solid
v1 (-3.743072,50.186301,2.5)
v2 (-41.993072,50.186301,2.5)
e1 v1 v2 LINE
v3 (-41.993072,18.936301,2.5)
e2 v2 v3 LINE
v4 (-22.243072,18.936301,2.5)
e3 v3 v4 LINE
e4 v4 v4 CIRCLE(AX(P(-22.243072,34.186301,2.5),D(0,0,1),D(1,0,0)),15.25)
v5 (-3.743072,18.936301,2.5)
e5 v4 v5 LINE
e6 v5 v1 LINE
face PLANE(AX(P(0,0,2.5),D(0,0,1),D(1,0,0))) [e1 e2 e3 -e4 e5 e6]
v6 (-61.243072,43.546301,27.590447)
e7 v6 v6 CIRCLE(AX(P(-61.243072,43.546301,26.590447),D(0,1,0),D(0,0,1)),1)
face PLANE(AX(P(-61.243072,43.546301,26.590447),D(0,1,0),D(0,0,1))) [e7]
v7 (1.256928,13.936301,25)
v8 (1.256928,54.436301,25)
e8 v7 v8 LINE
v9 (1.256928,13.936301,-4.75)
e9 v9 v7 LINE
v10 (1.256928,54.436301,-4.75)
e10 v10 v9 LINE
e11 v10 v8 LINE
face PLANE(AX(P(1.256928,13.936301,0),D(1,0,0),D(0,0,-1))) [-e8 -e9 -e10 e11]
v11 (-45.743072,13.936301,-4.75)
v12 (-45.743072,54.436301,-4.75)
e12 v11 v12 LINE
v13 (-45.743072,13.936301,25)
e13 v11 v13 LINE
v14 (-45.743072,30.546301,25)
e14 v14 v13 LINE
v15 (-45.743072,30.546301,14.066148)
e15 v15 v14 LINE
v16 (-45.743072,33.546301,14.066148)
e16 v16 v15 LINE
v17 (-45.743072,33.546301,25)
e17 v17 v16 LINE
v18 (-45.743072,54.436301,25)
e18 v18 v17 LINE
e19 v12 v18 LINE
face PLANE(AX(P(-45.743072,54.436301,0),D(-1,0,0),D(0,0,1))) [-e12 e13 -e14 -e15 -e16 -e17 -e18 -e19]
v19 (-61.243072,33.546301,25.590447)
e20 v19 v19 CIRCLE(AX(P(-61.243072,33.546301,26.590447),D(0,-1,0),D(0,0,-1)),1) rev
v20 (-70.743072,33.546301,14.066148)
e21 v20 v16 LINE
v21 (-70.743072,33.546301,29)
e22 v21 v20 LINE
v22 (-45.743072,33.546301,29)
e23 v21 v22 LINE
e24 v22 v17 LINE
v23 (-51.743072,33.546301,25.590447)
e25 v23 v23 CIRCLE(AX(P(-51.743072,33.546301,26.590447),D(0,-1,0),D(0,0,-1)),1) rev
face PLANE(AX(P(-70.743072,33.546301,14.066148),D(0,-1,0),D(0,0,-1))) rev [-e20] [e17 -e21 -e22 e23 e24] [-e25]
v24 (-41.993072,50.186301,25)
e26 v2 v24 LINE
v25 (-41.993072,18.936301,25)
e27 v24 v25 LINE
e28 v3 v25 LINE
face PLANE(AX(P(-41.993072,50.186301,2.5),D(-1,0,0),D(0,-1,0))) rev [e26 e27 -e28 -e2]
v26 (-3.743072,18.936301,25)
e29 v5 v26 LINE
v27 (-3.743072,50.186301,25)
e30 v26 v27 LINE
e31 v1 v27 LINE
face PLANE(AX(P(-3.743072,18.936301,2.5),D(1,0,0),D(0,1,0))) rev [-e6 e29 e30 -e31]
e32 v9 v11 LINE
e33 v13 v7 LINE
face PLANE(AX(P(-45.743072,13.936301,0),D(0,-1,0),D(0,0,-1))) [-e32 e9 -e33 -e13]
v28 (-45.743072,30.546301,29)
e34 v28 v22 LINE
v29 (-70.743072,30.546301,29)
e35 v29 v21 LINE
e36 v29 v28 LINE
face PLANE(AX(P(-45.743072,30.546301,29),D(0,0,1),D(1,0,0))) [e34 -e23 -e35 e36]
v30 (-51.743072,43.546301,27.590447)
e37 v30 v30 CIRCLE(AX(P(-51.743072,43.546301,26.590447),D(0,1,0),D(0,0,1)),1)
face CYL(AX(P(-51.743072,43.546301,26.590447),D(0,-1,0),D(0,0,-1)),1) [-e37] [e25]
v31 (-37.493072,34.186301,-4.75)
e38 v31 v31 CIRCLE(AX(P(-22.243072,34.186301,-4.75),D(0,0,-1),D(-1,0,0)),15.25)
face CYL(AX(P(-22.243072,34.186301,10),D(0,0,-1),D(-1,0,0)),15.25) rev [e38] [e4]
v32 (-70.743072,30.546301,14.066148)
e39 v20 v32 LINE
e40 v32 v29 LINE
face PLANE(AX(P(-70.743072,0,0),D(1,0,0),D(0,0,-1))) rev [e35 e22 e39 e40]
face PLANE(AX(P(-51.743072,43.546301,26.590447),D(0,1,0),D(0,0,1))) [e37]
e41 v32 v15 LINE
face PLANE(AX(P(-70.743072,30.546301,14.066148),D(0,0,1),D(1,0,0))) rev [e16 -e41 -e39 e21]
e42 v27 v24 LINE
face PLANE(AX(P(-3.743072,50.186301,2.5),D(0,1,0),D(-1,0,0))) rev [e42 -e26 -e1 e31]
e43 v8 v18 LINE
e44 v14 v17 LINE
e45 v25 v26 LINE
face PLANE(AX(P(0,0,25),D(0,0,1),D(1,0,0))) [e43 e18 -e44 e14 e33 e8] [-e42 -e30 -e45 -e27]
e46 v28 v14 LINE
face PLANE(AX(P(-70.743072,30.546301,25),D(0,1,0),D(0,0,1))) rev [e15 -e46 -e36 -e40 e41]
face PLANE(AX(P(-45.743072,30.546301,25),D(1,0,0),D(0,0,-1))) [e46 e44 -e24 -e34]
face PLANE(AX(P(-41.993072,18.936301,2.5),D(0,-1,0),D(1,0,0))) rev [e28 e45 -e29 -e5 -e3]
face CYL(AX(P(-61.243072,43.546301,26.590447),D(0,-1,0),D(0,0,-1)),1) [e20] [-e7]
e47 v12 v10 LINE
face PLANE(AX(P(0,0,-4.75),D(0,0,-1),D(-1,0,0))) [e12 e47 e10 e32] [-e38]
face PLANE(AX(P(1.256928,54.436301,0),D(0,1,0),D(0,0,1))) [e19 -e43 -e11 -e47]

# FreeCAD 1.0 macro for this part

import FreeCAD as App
import Part
import Sketcher
from FreeCAD import Vector
Q = App.Units.Quantity

doc = App.newDocument("Part")
params = doc.addObject("Spreadsheet::Sheet", "Params")
for row, (alias, value) in enumerate([
    ("sketch1_width", "47 mm"),
    ("sketch1_height", "40.5 mm"),
    ("pad1_length", "25 mm"),
    ("sketch2_width", "3 mm"),
    ("pad2_length", "25 mm"),
    ("sketch3_width", "38.25 mm"),
    ("sketch3_height", "31.25 mm"),
    ("pocket1_length", "22.5 mm"),
    ("sketch4_diameter", "30.5 mm"),
    ("pocket2_length", "10 mm"),
    ("sketch5_diameter", "30.5 mm"),
    ("sketch5_width", "47 mm"),
    ("sketch5_height", "40.5 mm"),
    ("pad3_length", "4.75 mm"),
    ("sketch6_width", "25 mm"),
    ("sketch6_height", "4 mm"),
    ("pad4_length", "3 mm"),
    ("sketch7_diameter", "2 mm"),
    ("pad5_length", "10 mm"),
], start=1):
    params.set(f"A{row}", alias)
    params.set(f"B{row}", "=" + value)
    params.setAlias(f"B{row}", alias)

body = doc.addObject("PartDesign::Body", "Body")

sketch1 = doc.addObject("Sketcher::SketchObject", "Sketch")
body.addObject(sketch1)
sketch1.AttachmentSupport = (doc.XY_Plane, [""])
sketch1.MapMode = "FlatFace"
sketch1.AttachmentOffset = App.Placement(Vector(0, 0, 25), App.Rotation())
sketch1.addGeometry(Part.LineSegment(Vector(-46, 54, 0), Vector(-46, 14, 0)), False)
sketch1.addGeometry(Part.LineSegment(Vector(-46, 14, 0), Vector(1, 14, 0)), False)
sketch1.addGeometry(Part.LineSegment(Vector(1, 14, 0), Vector(1, 54, 0)), False)
sketch1.addGeometry(Part.LineSegment(Vector(1, 54, 0), Vector(-46, 54, 0)), False)
sketch1.addConstraint(Sketcher.Constraint("Coincident", 0, 2, 1, 1))
sketch1.addConstraint(Sketcher.Constraint("Coincident", 1, 2, 2, 1))
sketch1.addConstraint(Sketcher.Constraint("Coincident", 2, 2, 3, 1))
sketch1.addConstraint(Sketcher.Constraint("Coincident", 3, 2, 0, 1))
sketch1.addConstraint(Sketcher.Constraint("Vertical", 0))
sketch1.addConstraint(Sketcher.Constraint("Horizontal", 1))
sketch1.addConstraint(Sketcher.Constraint("Vertical", 2))
sketch1.addConstraint(Sketcher.Constraint("Horizontal", 3))
sketch1.addConstraint(Sketcher.Constraint("DistanceX", 1, 1, 1, 2, Q("47 mm")))
sketch1.addConstraint(Sketcher.Constraint("DistanceY", 0, 2, 0, 1, Q("40.5 mm")))
sketch1.addConstraint(Sketcher.Constraint("DistanceY", -1, 1, 0, 2, Q("13.936301 mm")))
sketch1.addConstraint(Sketcher.Constraint("DistanceX", 0, 2, -1, 1, Q("45.743072 mm")))
sketch1.setExpression("Constraints[8]", "Params.sketch1_width")
sketch1.setExpression("Constraints[9]", "Params.sketch1_height")
pad1 = doc.addObject("PartDesign::Pad", "Pad")
body.addObject(pad1)
pad1.Profile = sketch1
pad1.setExpression("Length", "Params.pad1_length")
pad1.Reversed = True

sketch2 = doc.addObject("Sketcher::SketchObject", "Sketch001")
body.addObject(sketch2)
sketch2.AttachmentSupport = (doc.YZ_Plane, [""])
sketch2.MapMode = "FlatFace"
sketch2.AttachmentOffset = App.Placement(Vector(0, 0, -45.743072), App.Rotation())
sketch2.addGeometry(Part.LineSegment(Vector(33.5, 14.1, 0), Vector(30.5, 14.1, 0)), False)
sketch2.addGeometry(Part.LineSegment(Vector(30.5, 14.1, 0), Vector(30.5, 25, 0)), False)
sketch2.addGeometry(Part.LineSegment(Vector(30.5, 25, 0), Vector(33.5, 25, 0)), False)
sketch2.addGeometry(Part.LineSegment(Vector(33.5, 25, 0), Vector(33.5, 14.1, 0)), False)
sketch2.addConstraint(Sketcher.Constraint("Coincident", 0, 2, 1, 1))
sketch2.addConstraint(Sketcher.Constraint("Coincident", 1, 2, 2, 1))
sketch2.addConstraint(Sketcher.Constraint("Coincident", 2, 2, 3, 1))
sketch2.addConstraint(Sketcher.Constraint("Coincident", 3, 2, 0, 1))
sketch2.addConstraint(Sketcher.Constraint("Horizontal", 0))
sketch2.addConstraint(Sketcher.Constraint("Vertical", 1))
sketch2.addConstraint(Sketcher.Constraint("Horizontal", 2))
sketch2.addConstraint(Sketcher.Constraint("Vertical", 3))
sketch2.addConstraint(Sketcher.Constraint("DistanceX", 0, 2, 0, 1, Q("3 mm")))
sketch2.addConstraint(Sketcher.Constraint("DistanceY", -1, 1, 1, 2, Q("25 mm")))
sketch2.addConstraint(Sketcher.Constraint("DistanceY", 1, 1, 1, 2, Q("10.933852 mm")))
sketch2.addConstraint(Sketcher.Constraint("DistanceX", -1, 1, 0, 2, Q("30.546301 mm")))
sketch2.setExpression("Constraints[8]", "Params.sketch2_width")
pad2 = doc.addObject("PartDesign::Pad", "Pad001")
body.addObject(pad2)
pad2.Profile = sketch2
pad2.setExpression("Length", "Params.pad2_length")
pad2.Reversed = True

sketch3 = doc.addObject("Sketcher::SketchObject", "Sketch002")
body.addObject(sketch3)
sketch3.AttachmentSupport = (doc.XY_Plane, [""])
sketch3.MapMode = "FlatFace"
sketch3.AttachmentOffset = App.Placement(Vector(0, 0, 25), App.Rotation())
sketch3.addGeometry(Part.LineSegment(Vector(-42, 50, 0), Vector(-42, 19, 0)), False)
sketch3.addGeometry(Part.LineSegment(Vector(-42, 19, 0), Vector(-4, 19, 0)), False)
sketch3.addGeometry(Part.LineSegment(Vector(-4, 19, 0), Vector(-4, 50, 0)), False)
sketch3.addGeometry(Part.LineSegment(Vector(-4, 50, 0), Vector(-42, 50, 0)), False)
sketch3.addConstraint(Sketcher.Constraint("Coincident", 0, 2, 1, 1))
sketch3.addConstraint(Sketcher.Constraint("Coincident", 1, 2, 2, 1))
sketch3.addConstraint(Sketcher.Constraint("Coincident", 2, 2, 3, 1))
sketch3.addConstraint(Sketcher.Constraint("Coincident", 3, 2, 0, 1))
sketch3.addConstraint(Sketcher.Constraint("Vertical", 0))
sketch3.addConstraint(Sketcher.Constraint("Horizontal", 1))
sketch3.addConstraint(Sketcher.Constraint("Vertical", 2))
sketch3.addConstraint(Sketcher.Constraint("Horizontal", 3))
sketch3.addConstraint(Sketcher.Constraint("DistanceX", 1, 1, 1, 2, Q("38.25 mm")))
sketch3.addConstraint(Sketcher.Constraint("DistanceY", 0, 2, 0, 1, Q("31.25 mm")))
sketch3.addConstraint(Sketcher.Constraint("DistanceY", -1, 1, 0, 2, Q("18.936301 mm")))
sketch3.addConstraint(Sketcher.Constraint("DistanceX", 0, 2, -1, 1, Q("41.993072 mm")))
sketch3.setExpression("Constraints[8]", "Params.sketch3_width")
sketch3.setExpression("Constraints[9]", "Params.sketch3_height")
pocket1 = doc.addObject("PartDesign::Pocket", "Pocket")
body.addObject(pocket1)
pocket1.Profile = sketch3
pocket1.setExpression("Length", "Params.pocket1_length")

sketch4 = doc.addObject("Sketcher::SketchObject", "Sketch003")
body.addObject(sketch4)
sketch4.AttachmentSupport = (doc.XY_Plane, [""])
sketch4.MapMode = "FlatFace"
sketch4.addGeometry(Part.Circle(Vector(-22, 34, 0), Vector(0, 0, 1), 15), False)
sketch4.addConstraint(Sketcher.Constraint("Diameter", 0, Q("30.5 mm")))
sketch4.addConstraint(Sketcher.Constraint("DistanceY", -1, 1, 0, 3, Q("34.186301 mm")))
sketch4.addConstraint(Sketcher.Constraint("DistanceX", 0, 3, -1, 1, Q("22.243072 mm")))
sketch4.setExpression("Constraints[0]", "Params.sketch4_diameter")
pocket2 = doc.addObject("PartDesign::Pocket", "Pocket001")
body.addObject(pocket2)
pocket2.Profile = sketch4
pocket2.setExpression("Length", "Params.pocket2_length")
pocket2.Reversed = True

sketch5 = doc.addObject("Sketcher::SketchObject", "Sketch004")
body.addObject(sketch5)
sketch5.AttachmentSupport = (doc.XY_Plane, [""])
sketch5.MapMode = "FlatFace"
sketch5.AttachmentOffset = App.Placement(Vector(0, 0, -4.75), App.Rotation())
sketch5.addGeometry(Part.LineSegment(Vector(1, 54, 0), Vector(1, 14, 0)), False)
sketch5.addGeometry(Part.LineSegment(Vector(1, 14, 0), Vector(-46, 14, 0)), False)
sketch5.addGeometry(Part.LineSegment(Vector(-46, 14, 0), Vector(-46, 54, 0)), False)
sketch5.addGeometry(Part.LineSegment(Vector(-46, 54, 0), Vector(1, 54, 0)), False)
sketch5.addGeometry(Part.Circle(Vector(-22, 34, 0), Vector(0, 0, 1), 15), False)
sketch5.addConstraint(Sketcher.Constraint("Coincident", 0, 2, 1, 1))
sketch5.addConstraint(Sketcher.Constraint("Coincident", 1, 2, 2, 1))
sketch5.addConstraint(Sketcher.Constraint("Coincident", 2, 2, 3, 1))
sketch5.addConstraint(Sketcher.Constraint("Coincident", 3, 2, 0, 1))
sketch5.addConstraint(Sketcher.Constraint("Vertical", 0))
sketch5.addConstraint(Sketcher.Constraint("Horizontal", 1))
sketch5.addConstraint(Sketcher.Constraint("Vertical", 2))
sketch5.addConstraint(Sketcher.Constraint("Horizontal", 3))
sketch5.addConstraint(Sketcher.Constraint("Diameter", 4, Q("30.5 mm")))
sketch5.addConstraint(Sketcher.Constraint("DistanceX", 1, 2, 1, 1, Q("47 mm")))
sketch5.addConstraint(Sketcher.Constraint("DistanceY", 0, 2, 0, 1, Q("40.5 mm")))
sketch5.addConstraint(Sketcher.Constraint("DistanceX", 4, 3, 0, 2, Q("23.5 mm")))
sketch5.addConstraint(Sketcher.Constraint("DistanceY", 0, 2, 4, 3, Q("20.25 mm")))
sketch5.addConstraint(Sketcher.Constraint("DistanceY", -1, 1, 4, 3, Q("34.186301 mm")))
sketch5.addConstraint(Sketcher.Constraint("DistanceX", 4, 3, -1, 1, Q("22.243072 mm")))
sketch5.setExpression("Constraints[8]", "Params.sketch5_diameter")
sketch5.setExpression("Constraints[9]", "Params.sketch5_width")
sketch5.setExpression("Constraints[10]", "Params.sketch5_height")
pad3 = doc.addObject("PartDesign::Pad", "Pad002")
body.addObject(pad3)
pad3.Profile = sketch5
pad3.setExpression("Length", "Params.pad3_length")

sketch6 = doc.addObject("Sketcher::SketchObject", "Sketch005")
body.addObject(sketch6)
sketch6.AttachmentSupport = (doc.XZ_Plane, [""])
sketch6.MapMode = "FlatFace"
sketch6.AttachmentOffset = App.Placement(Vector(0, 0, -33.546301), App.Rotation())
sketch6.addGeometry(Part.LineSegment(Vector(-70.7, 25, 0), Vector(-70.7, 29, 0)), False)
sketch6.addGeometry(Part.LineSegment(Vector(-70.7, 29, 0), Vector(-45.7, 29, 0)), False)
sketch6.addGeometry(Part.LineSegment(Vector(-45.7, 29, 0), Vector(-45.7, 25, 0)), False)
sketch6.addGeometry(Part.LineSegment(Vector(-45.7, 25, 0), Vector(-70.7, 25, 0)), False)
sketch6.addConstraint(Sketcher.Constraint("Coincident", 0, 2, 1, 1))
sketch6.addConstraint(Sketcher.Constraint("Coincident", 1, 2, 2, 1))
sketch6.addConstraint(Sketcher.Constraint("Coincident", 2, 2, 3, 1))
sketch6.addConstraint(Sketcher.Constraint("Coincident", 3, 2, 0, 1))
sketch6.addConstraint(Sketcher.Constraint("Vertical", 0))
sketch6.addConstraint(Sketcher.Constraint("Horizontal", 1))
sketch6.addConstraint(Sketcher.Constraint("Vertical", 2))
sketch6.addConstraint(Sketcher.Constraint("Horizontal", 3))
sketch6.addConstraint(Sketcher.Constraint("DistanceX", 1, 1, 1, 2, Q("25 mm")))
sketch6.addConstraint(Sketcher.Constraint("DistanceY", 0, 1, 0, 2, Q("4 mm")))
sketch6.addConstraint(Sketcher.Constraint("DistanceY", -1, 1, 0, 2, Q("29 mm")))
sketch6.addConstraint(Sketcher.Constraint("DistanceX", 0, 2, -1, 1, Q("70.743072 mm")))
sketch6.setExpression("Constraints[8]", "Params.sketch6_width")
sketch6.setExpression("Constraints[9]", "Params.sketch6_height")
pad4 = doc.addObject("PartDesign::Pad", "Pad003")
body.addObject(pad4)
pad4.Profile = sketch6
pad4.setExpression("Length", "Params.pad4_length")

sketch7 = doc.addObject("Sketcher::SketchObject", "Sketch006")
body.addObject(sketch7)
sketch7.AttachmentSupport = (doc.XZ_Plane, [""])
sketch7.MapMode = "FlatFace"
sketch7.AttachmentOffset = App.Placement(Vector(0, 0, -33.546301), App.Rotation())
sketch7.addGeometry(Part.Circle(Vector(-61.2, 26.6, 0), Vector(0, 0, 1), 1), False)
sketch7.addGeometry(Part.Circle(Vector(-51.7, 26.6, 0), Vector(0, 0, 1), 1), False)
sketch7.addConstraint(Sketcher.Constraint("Equal", 0, 1))
sketch7.addConstraint(Sketcher.Constraint("Horizontal", 0, 3, 1, 3))
sketch7.addConstraint(Sketcher.Constraint("Diameter", 0, Q("2 mm")))
sketch7.addConstraint(Sketcher.Constraint("DistanceX", 0, 3, 1, 3, Q("9.5 mm")))
sketch7.addConstraint(Sketcher.Constraint("DistanceX", 0, 3, -1, 1, Q("61.243072 mm")))
sketch7.addConstraint(Sketcher.Constraint("DistanceY", -1, 1, 0, 3, Q("26.590447 mm")))
sketch7.setExpression("Constraints[2]", "Params.sketch7_diameter")
pad5 = doc.addObject("PartDesign::Pad", "Pad004")
body.addObject(pad5)
pad5.Profile = sketch7
pad5.setExpression("Length", "Params.pad5_length")
pad5.Reversed = True

doc.recompute()
